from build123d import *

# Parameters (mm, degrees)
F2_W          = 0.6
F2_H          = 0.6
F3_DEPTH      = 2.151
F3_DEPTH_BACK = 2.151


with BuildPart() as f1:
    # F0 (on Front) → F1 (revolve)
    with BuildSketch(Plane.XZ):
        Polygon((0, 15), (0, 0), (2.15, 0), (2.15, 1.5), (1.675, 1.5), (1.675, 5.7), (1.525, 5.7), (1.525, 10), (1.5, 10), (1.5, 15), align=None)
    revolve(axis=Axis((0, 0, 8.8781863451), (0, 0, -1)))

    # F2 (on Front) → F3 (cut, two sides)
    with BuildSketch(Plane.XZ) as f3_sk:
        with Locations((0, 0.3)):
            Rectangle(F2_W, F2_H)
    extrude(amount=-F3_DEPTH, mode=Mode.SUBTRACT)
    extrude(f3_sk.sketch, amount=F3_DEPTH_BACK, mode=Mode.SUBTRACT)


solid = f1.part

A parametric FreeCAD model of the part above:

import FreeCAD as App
import Part
import Sketcher


def add_polygon(sketch, points):
    """Adds a closed chain of lines whose ends are joined by coincident constraints."""
    first, n = sketch.GeometryCount, len(points)
    for a, b in zip(points, points[1:] + points[:1]):
        sketch.addGeometry(Part.LineSegment(App.Vector(*a, 0), App.Vector(*b, 0)), False)
    for i in range(n):
        sketch.addConstraint(Sketcher.Constraint("Coincident", first + i, 2, first + (i + 1) % n, 1))

doc = App.newDocument("Part")
params = doc.addObject("Spreadsheet::Sheet", "Params")
for row, (alias, value) in enumerate([
    ("sketch1_height", "15 mm"),
    ("sketch1_height2", "5 mm"),
    ("sketch1_width", "1.5 mm"),
    ("sketch1_height3", "4.2 mm"),
    ("sketch1_width2", "2.15 mm"),
    ("revolution_angle", "360 deg"),
    ("sketch2_width", "0.6 mm"),
], start=1):
    params.set(f"A{row}", alias)
    params.set(f"B{row}", "=" + value)
    params.setAlias(f"B{row}", alias)

body = doc.addObject("PartDesign::Body", "Body")

# Sketch on XZ plane
sketch1 = body.newObject("Sketcher::SketchObject", "Sketch")
sketch1.AttachmentSupport = (doc.getObject("XZ_Plane"), [""])
sketch1.MapMode = "FlatFace"
add_polygon(sketch1, [(0, 15), (0, 0), (2.15, 0), (2.15, 1.5), (1.675, 1.5), (1.675, 5.7), (1.525, 5.7), (1.525, 10), (1.5, 10), (1.5, 15)])  # lines 0-9
sketch1.addConstraint([
    Sketcher.Constraint("Vertical", 0),
    Sketcher.Constraint("Horizontal", 1),
    Sketcher.Constraint("Vertical", 2),
    Sketcher.Constraint("Horizontal", 3),
    Sketcher.Constraint("Vertical", 4),
    Sketcher.Constraint("Horizontal", 5),
    Sketcher.Constraint("Vertical", 6),
    Sketcher.Constraint("Horizontal", 7),
    Sketcher.Constraint("Vertical", 8),
    Sketcher.Constraint("Horizontal", 9),
    Sketcher.Constraint("Coincident", 0, 2, -1, 1),
    Sketcher.Constraint("Equal", 9, 2),
    Sketcher.Constraint("DistanceY", 0, 2, 0, 1, 15.0),
    Sketcher.Constraint("DistanceY", 8, 1, 8, 2, 5.0),
    Sketcher.Constraint("DistanceX", 9, 2, 9, 1, 1.5),
    Sketcher.Constraint("DistanceY", 4, 1, 4, 2, 4.2),
    Sketcher.Constraint("DistanceX", 1, 1, 1, 2, 2.15),
    Sketcher.Constraint("DistanceX", 5, 2, 5, 1, 0.15),
    Sketcher.Constraint("DistanceX", 3, 2, 3, 1, 0.475),
])
sketch1.setExpression("Constraints[22]", "Params.sketch1_height")
sketch1.setExpression("Constraints[23]", "Params.sketch1_height2")
sketch1.setExpression("Constraints[24]", "Params.sketch1_width")
sketch1.setExpression("Constraints[25]", "Params.sketch1_height3")
sketch1.setExpression("Constraints[26]", "Params.sketch1_width2")
revolution = body.newObject("PartDesign::Revolution", "Revolution")
revolution.Profile = sketch1
revolution.ReferenceAxis = (sketch1, ["V_Axis"])
revolution.setExpression("Angle", "Params.revolution_angle")

# Sketch on XZ plane
sketch2 = body.newObject("Sketcher::SketchObject", "Sketch001")
sketch2.AttachmentSupport = (doc.getObject("XZ_Plane"), [""])
sketch2.MapMode = "FlatFace"
add_polygon(sketch2, [(-0.3, 0.6), (-0.3, 0), (0.3, 0), (0.3, 0.6)])  # lines 0-3
sketch2.addConstraint([
    Sketcher.Constraint("Vertical", 0),
    Sketcher.Constraint("Horizontal", 1),
    Sketcher.Constraint("Vertical", 2),
    Sketcher.Constraint("Horizontal", 3),
    Sketcher.Constraint("Symmetric", 0, 2, 1, 2, -1, 1),
    Sketcher.Constraint("Equal", 3, 0),
    Sketcher.Constraint("DistanceX", 1, 1, 1, 2, 0.6),
])
sketch2.setExpression("Constraints[10]", "Params.sketch2_width")
pocket1 = body.newObject("PartDesign::Pocket", "Pocket")
pocket1.Profile = sketch2
pocket1.Type = "ThroughAll"
pocket1.Midplane = True

doc.recompute()
